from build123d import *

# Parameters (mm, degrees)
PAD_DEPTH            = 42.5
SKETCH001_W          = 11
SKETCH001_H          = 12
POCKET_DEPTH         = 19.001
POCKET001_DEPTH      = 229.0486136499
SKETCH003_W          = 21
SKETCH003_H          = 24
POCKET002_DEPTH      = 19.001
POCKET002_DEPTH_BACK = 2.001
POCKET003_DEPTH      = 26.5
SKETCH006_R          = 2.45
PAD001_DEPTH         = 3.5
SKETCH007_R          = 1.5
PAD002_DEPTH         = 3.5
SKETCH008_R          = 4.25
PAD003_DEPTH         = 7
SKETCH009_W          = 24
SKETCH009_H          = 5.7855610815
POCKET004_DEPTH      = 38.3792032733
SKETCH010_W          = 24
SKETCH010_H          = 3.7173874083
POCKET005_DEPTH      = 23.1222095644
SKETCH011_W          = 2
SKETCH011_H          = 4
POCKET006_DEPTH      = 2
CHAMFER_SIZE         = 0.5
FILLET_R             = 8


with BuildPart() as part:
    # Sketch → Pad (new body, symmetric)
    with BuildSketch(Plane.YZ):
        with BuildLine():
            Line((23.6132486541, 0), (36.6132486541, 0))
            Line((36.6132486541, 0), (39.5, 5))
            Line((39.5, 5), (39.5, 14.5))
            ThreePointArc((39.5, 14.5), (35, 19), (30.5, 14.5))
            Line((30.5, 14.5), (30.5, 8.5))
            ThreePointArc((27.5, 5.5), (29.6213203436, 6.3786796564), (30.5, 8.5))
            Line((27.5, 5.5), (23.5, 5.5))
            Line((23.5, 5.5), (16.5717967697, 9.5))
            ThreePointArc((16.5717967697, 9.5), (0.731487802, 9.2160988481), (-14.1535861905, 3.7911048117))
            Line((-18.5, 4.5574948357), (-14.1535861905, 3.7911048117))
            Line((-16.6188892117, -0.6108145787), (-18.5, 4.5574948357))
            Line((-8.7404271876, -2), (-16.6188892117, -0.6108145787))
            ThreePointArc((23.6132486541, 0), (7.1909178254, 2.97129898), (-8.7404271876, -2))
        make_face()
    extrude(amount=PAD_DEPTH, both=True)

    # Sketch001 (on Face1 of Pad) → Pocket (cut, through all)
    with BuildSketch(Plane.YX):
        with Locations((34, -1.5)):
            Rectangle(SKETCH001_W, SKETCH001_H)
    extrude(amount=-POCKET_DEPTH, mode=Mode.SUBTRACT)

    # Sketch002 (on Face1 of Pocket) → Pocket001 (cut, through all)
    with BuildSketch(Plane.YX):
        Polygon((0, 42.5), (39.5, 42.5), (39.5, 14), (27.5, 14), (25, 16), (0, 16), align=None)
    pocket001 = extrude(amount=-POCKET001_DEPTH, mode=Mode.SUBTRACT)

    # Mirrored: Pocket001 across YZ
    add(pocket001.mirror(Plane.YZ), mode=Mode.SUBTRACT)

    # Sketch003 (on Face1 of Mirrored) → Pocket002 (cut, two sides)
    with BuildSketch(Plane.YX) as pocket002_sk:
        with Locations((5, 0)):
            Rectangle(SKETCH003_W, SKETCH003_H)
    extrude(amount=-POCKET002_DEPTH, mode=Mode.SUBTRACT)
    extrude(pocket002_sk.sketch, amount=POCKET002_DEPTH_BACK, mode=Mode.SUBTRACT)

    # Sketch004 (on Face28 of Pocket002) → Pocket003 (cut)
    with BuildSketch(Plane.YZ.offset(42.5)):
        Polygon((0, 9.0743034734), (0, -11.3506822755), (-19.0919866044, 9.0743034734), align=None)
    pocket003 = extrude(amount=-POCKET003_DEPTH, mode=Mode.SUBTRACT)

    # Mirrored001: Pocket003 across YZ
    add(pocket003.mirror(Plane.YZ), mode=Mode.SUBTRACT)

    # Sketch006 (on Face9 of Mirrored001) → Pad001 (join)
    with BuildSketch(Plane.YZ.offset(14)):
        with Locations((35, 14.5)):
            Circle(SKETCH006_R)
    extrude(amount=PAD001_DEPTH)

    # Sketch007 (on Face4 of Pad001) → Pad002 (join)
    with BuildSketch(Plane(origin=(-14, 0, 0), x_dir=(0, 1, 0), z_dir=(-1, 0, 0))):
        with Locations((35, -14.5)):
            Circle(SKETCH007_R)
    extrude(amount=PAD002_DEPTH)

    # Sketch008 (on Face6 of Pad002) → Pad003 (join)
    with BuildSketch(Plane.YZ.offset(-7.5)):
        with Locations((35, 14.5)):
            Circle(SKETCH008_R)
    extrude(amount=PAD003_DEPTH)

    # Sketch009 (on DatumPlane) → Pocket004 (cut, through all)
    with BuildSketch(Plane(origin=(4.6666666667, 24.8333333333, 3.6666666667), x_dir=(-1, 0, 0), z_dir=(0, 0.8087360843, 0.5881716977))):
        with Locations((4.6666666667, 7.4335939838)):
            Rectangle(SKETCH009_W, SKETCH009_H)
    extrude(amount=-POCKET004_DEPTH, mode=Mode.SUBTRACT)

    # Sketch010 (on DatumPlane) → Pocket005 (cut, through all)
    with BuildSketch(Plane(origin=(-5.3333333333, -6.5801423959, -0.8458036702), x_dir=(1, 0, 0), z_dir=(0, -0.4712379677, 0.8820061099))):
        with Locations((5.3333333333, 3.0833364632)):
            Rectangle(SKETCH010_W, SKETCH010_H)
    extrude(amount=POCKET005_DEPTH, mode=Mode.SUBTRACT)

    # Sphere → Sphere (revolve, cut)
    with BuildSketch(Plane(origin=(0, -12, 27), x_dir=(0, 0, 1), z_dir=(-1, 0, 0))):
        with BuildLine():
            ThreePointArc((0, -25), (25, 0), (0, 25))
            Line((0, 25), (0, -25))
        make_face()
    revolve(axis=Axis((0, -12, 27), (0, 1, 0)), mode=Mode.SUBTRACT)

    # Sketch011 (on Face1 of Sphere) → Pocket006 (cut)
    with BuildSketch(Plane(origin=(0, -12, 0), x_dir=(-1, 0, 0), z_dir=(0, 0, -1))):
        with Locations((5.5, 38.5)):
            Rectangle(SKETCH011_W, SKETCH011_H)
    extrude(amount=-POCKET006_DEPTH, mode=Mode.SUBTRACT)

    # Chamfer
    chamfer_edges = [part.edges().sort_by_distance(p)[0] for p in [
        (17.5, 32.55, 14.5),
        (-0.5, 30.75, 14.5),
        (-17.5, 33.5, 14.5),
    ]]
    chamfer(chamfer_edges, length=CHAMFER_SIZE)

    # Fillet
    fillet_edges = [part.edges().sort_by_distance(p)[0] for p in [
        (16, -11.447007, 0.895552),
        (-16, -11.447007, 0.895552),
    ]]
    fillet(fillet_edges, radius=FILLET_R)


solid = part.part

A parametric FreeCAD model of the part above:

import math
import FreeCAD as App
import Part
import Sketcher

V = App.Vector
Q = App.Units.Quantity


def edges_at(feature, points):
    """Names of the edges that pass closest to the given points."""
    edges = feature.Shape.Edges
    near = lambda p: min(range(len(edges)), key=lambda i: edges[i].distToShape(Part.Vertex(*p))[0])
    return sorted({f"Edge{near(p) + 1}" for p in points})


def add_polygon(sketch, points):
    """Adds a closed chain of lines whose ends are joined by coincident constraints."""
    first, n = sketch.GeometryCount, len(points)
    for a, b in zip(points, points[1:] + points[:1]):
        sketch.addGeometry(Part.LineSegment(App.Vector(*a, 0), App.Vector(*b, 0)), False)
    for i in range(n):
        sketch.addConstraint(Sketcher.Constraint("Coincident", first + i, 2, first + (i + 1) % n, 1))

doc = App.newDocument("Part")
body = doc.addObject("PartDesign::Body", "Body")

# Sketch on YZ plane
sketch1 = body.newObject("Sketcher::SketchObject", "Sketch")
sketch1.AttachmentSupport = (doc.getObject("YZ_Plane"), [""])
sketch1.MapMode = "FlatFace"
sketch1.addGeometry([
    Part.LineSegment(V(23.6, 0, 0), V(36.6, 0, 0)),  # 0
    Part.LineSegment(V(36.6, 0, 0), V(39.5, 5, 0)),  # 1
    Part.LineSegment(V(39.5, 5, 0), V(39.5, 14.5, 0)),  # 2
    Part.ArcOfCircle(Part.Circle(V(35, 14.5, 0), V(0, 0, 1), 4.5), math.radians(0), math.radians(180)),  # 3
    Part.LineSegment(V(30.5, 14.5, 0), V(30.5, 8.5, 0)),  # 4
    Part.ArcOfCircle(Part.Circle(V(27.5, 8.5, 0), V(0, 0, 1), 3), math.radians(-90), math.radians(0)),  # 5
    Part.LineSegment(V(27.5, 5.5, 0), V(23.5, 5.5, 0)),  # 6
    Part.LineSegment(V(23.5, 5.5, 0), V(16.6, 9.5, 0)),  # 7
    Part.ArcOfCircle(Part.Circle(V(9.5, -38, 0), V(0, 0, 1), 48), math.radians(82), math.radians(120)),  # 8
    Part.LineSegment(V(-14.2, 3.8, 0), V(-18.5, 4.6, 0)),  # 9
    Part.LineSegment(V(-18.5, 4.6, 0), V(-16.6, -0.6, 0)),  # 10
    Part.LineSegment(V(-16.6, -0.6, 0), V(-8.7, -2, 0)),  # 11
    Part.ArcOfCircle(Part.Circle(V(9.4, -32, 0), V(0, 0, 1), 35), math.radians(66), math.radians(121)),  # 12
], False)
sketch1.addConstraint([
    Sketcher.Constraint("Coincident", 0, 2, 1, 1),
    Sketcher.Constraint("Coincident", 1, 2, 2, 1),
    Sketcher.Constraint("Tangent", 2, 2, 3, 1),
    Sketcher.Constraint("Tangent", 3, 2, 4, 1),
    Sketcher.Constraint("Tangent", 4, 2, 5, 2),
    Sketcher.Constraint("Tangent", 5, 1, 6, 1),
    Sketcher.Constraint("Coincident", 6, 2, 7, 1),
    Sketcher.Constraint("Coincident", 7, 2, 8, 1),
    Sketcher.Constraint("Coincident", 8, 2, 9, 1),
    Sketcher.Constraint("Coincident", 9, 2, 10, 1),
    Sketcher.Constraint("Coincident", 10, 2, 11, 1),
    Sketcher.Constraint("Coincident", 11, 2, 12, 2),
    Sketcher.Constraint("Coincident", 12, 1, 0, 1),
    Sketcher.Constraint("Horizontal", 0),
    Sketcher.Constraint("Vertical", 2),
    Sketcher.Constraint("Vertical", 4),
    Sketcher.Constraint("Horizontal", 6),
    Sketcher.Constraint("PointOnObject", 0, 2, -1),
    Sketcher.Constraint("Perpendicular", 1, 7),
    Sketcher.Constraint("Parallel", 9, 11),
    Sketcher.Constraint("Equal", 7, 11),
    Sketcher.Constraint("Radius", 5, Q("3 mm")),
    Sketcher.Constraint("Radius", 8, Q("48 mm")),
    Sketcher.Constraint("Radius", 12, Q("35 mm")),
    Sketcher.Constraint("Radius", 3, Q("4.5 mm")),
    Sketcher.Constraint("DistanceX", 0, 1, 0, 2, Q("13 mm")),
    Sketcher.Constraint("DistanceX", 6, 2, 6, 1, Q("4 mm")),
    Sketcher.Constraint("DistanceY", 4, 2, 4, 1, Q("6 mm")),
    Sketcher.Constraint("Angle", 1, Q("60 deg")),
    Sketcher.Constraint("Angle", 9, Q("170 deg")),
    Sketcher.Constraint("Angle", 10, Q("-70 deg")),
    Sketcher.Constraint("Distance", 7, Q("8 mm")),
    Sketcher.Constraint("DistanceY", 2, 1, 2, 2, Q("9.5 mm")),
    Sketcher.Constraint("DistanceX", -1, 1, 3, 3, Q("35 mm")),
    Sketcher.Constraint("DistanceY", -1, 1, 1, 2, Q("5 mm")),
    Sketcher.Constraint("DistanceY", 11, 2, -1, 1, Q("2 mm")),
    Sketcher.Constraint("DistanceX", 8, 3, 5, 3, Q("18 mm")),
    Sketcher.Constraint("DistanceX", 9, 2, 6, 2, Q("42 mm")),
    Sketcher.Constraint("Distance", 10, Q("5.5 mm")),
])
pad1 = body.newObject("PartDesign::Pad", "Pad")
pad1.Profile = sketch1
pad1.Length = 85
pad1.Midplane = True

# Sketch on XY plane
sketch2 = body.newObject("Sketcher::SketchObject", "Sketch001")
sketch2.AttachmentSupport = (doc.getObject("XY_Plane"), [""])
sketch2.MapMode = "FlatFace"
add_polygon(sketch2, [(4, 28), (-8, 28), (-8, 40), (4, 40)])  # lines 0-3
sketch2.addConstraint([
    Sketcher.Constraint("Horizontal", 0),
    Sketcher.Constraint("Vertical", 1),
    Sketcher.Constraint("Horizontal", 2),
    Sketcher.Constraint("Vertical", 3),
    Sketcher.Constraint("DistanceX", 0, 2, 0, 1, Q("12 mm")),
    Sketcher.Constraint("DistanceY", 1, 1, 1, 2, Q("11 mm")),
    Sketcher.Constraint("DistanceX", 0, 2, -1, 1, Q("7.5 mm")),
    Sketcher.Constraint("DistanceY", -1, 1, 0, 2, Q("28.5 mm")),
])
pocket1 = body.newObject("PartDesign::Pocket", "Pocket")
pocket1.Profile = sketch2
pocket1.Type = "ThroughAll"
pocket1.Reversed = True

# Sketch on XY plane
sketch3 = body.newObject("Sketcher::SketchObject", "Sketch002")
sketch3.AttachmentSupport = (doc.getObject("XY_Plane"), [""])
sketch3.MapMode = "FlatFace"
add_polygon(sketch3, [(42.5, 39.5), (42.5, 0), (16, 0), (16, 25), (14, 27.5), (14, 39.5)])  # lines 0-5
sketch3.addConstraint([
    Sketcher.Constraint("Vertical", 0),
    Sketcher.Constraint("Horizontal", 1),
    Sketcher.Constraint("Vertical", 2),
    Sketcher.Constraint("Vertical", 4),
    Sketcher.Constraint("Horizontal", 5),
    Sketcher.Constraint("PointOnObject", 0, 2, -1),
    Sketcher.Constraint("DistanceY", 2, 1, 2, 2, Q("25 mm")),
    Sketcher.Constraint("DistanceY", 4, 1, 4, 2, Q("12 mm")),
    Sketcher.Constraint("DistanceX", 1, 2, 1, 1, Q("26.5 mm")),
    Sketcher.Constraint("DistanceX", 5, 1, 5, 2, Q("28.5 mm")),
    Sketcher.Constraint("DistanceY", 0, 2, 0, 1, Q("39.5 mm")),
    Sketcher.Constraint("DistanceX", -1, 1, 1, 2, Q("16 mm")),
])
pocket2 = body.newObject("PartDesign::Pocket", "Pocket001")
pocket2.Profile = sketch3
pocket2.Type = "ThroughAll"
pocket2.Reversed = True
doc.recompute()

mirrored = body.newObject("PartDesign::Mirrored", "Mirrored")
mirrored.Originals = [pocket2]
mirrored.MirrorPlane = (doc.getObject("YZ_Plane"), [""])
body.Tip = mirrored

# Sketch on XY plane
sketch4 = body.newObject("Sketcher::SketchObject", "Sketch003")
sketch4.AttachmentSupport = (doc.getObject("XY_Plane"), [""])
sketch4.MapMode = "FlatFace"
add_polygon(sketch4, [(12, -6), (-12, -6), (-12, 16), (12, 16)])  # lines 0-3
sketch4.addConstraint([
    Sketcher.Constraint("Horizontal", 0),
    Sketcher.Constraint("Vertical", 1),
    Sketcher.Constraint("Horizontal", 2),
    Sketcher.Constraint("Vertical", 3),
    Sketcher.Constraint("DistanceX", 0, 2, 0, 1, Q("24 mm")),
    Sketcher.Constraint("DistanceY", 1, 1, 1, 2, Q("21 mm")),
    Sketcher.Constraint("DistanceX", 0, 2, -1, 1, Q("12 mm")),
    Sketcher.Constraint("DistanceY", 0, 2, -1, 1, Q("5.5 mm")),
])
pocket3 = body.newObject("PartDesign::Pocket", "Pocket002")
pocket3.Profile = sketch4
pocket3.Type = "ThroughAll"
pocket3.Midplane = True

# Sketch on YZ plane
sketch5 = body.newObject("Sketcher::SketchObject", "Sketch004")
sketch5.AttachmentSupport = (doc.getObject("YZ_Plane"), [""])
sketch5.MapMode = "FlatFace"
sketch5.AttachmentOffset = App.Placement(V(0, 0, 42.5), App.Rotation())
add_polygon(sketch5, [(0, -11), (0, 9), (-19, 9)])  # lines 0-2
sketch5.addConstraint([
    Sketcher.Constraint("Vertical", 0),
    Sketcher.Constraint("Horizontal", 1),
    Sketcher.Constraint("PointOnObject", 0, 2, -2),
    Sketcher.Constraint("DistanceX", 1, 2, 1, 1, Q("19.091987 mm")),
    Sketcher.Constraint("DistanceY", 0, 1, 0, 2, Q("20.424986 mm")),
    Sketcher.Constraint("DistanceY", -1, 1, 0, 2, Q("9.074303 mm")),
])
pocket4 = body.newObject("PartDesign::Pocket", "Pocket003")
pocket4.Profile = sketch5
pocket4.Length = 26.5
doc.recompute()

mirrored2 = body.newObject("PartDesign::Mirrored", "Mirrored001")
mirrored2.Originals = [pocket4]
mirrored2.MirrorPlane = (doc.getObject("YZ_Plane"), [""])
body.Tip = mirrored2

# Sketch on YZ plane
sketch6 = body.newObject("Sketcher::SketchObject", "Sketch005")
sketch6.AttachmentSupport = (doc.getObject("YZ_Plane"), [""])
sketch6.MapMode = "FlatFace"
sketch6.AttachmentOffset = App.Placement(V(0, 0, 14), App.Rotation())
sketch6.addGeometry(Part.Circle(V(35, 14.5, 0), V(0, 0, 1), 2.5), False)
sketch6.addConstraint([
    Sketcher.Constraint("Diameter", 0, Q("4.9 mm")),
    Sketcher.Constraint("DistanceX", -1, 1, 0, 3, Q("35 mm")),
    Sketcher.Constraint("DistanceY", -1, 1, 0, 3, Q("14.5 mm")),
])
pad2 = body.newObject("PartDesign::Pad", "Pad001")
pad2.Profile = sketch6
pad2.Length = 3.5

# Sketch on YZ plane
sketch7 = body.newObject("Sketcher::SketchObject", "Sketch006")
sketch7.AttachmentSupport = (doc.getObject("YZ_Plane"), [""])
sketch7.MapMode = "FlatFace"
sketch7.AttachmentOffset = App.Placement(V(0, 0, -14), App.Rotation())
sketch7.addGeometry(Part.Circle(V(35, 14.5, 0), V(0, 0, 1), 1.5), False)
sketch7.addConstraint([
    Sketcher.Constraint("Diameter", 0, Q("3 mm")),
    Sketcher.Constraint("DistanceX", -1, 1, 0, 3, Q("35 mm")),
    Sketcher.Constraint("DistanceY", -1, 1, 0, 3, Q("14.5 mm")),
])
pad3 = body.newObject("PartDesign::Pad", "Pad002")
pad3.Profile = sketch7
pad3.Length = 3.5
pad3.Reversed = True

# Sketch on YZ plane
sketch8 = body.newObject("Sketcher::SketchObject", "Sketch007")
sketch8.AttachmentSupport = (doc.getObject("YZ_Plane"), [""])
sketch8.MapMode = "FlatFace"
sketch8.AttachmentOffset = App.Placement(V(0, 0, -7.5), App.Rotation())
sketch8.addGeometry(Part.Circle(V(35, 14.5, 0), V(0, 0, 1), 4.2), False)
sketch8.addConstraint([
    Sketcher.Constraint("Diameter", 0, Q("8.5 mm")),
    Sketcher.Constraint("DistanceX", -1, 1, 0, 3, Q("35 mm")),
    Sketcher.Constraint("DistanceY", -1, 1, 0, 3, Q("14.5 mm")),
])
pad4 = body.newObject("PartDesign::Pad", "Pad003")
pad4.Profile = sketch8
pad4.Length = 7

# Sketch on an angled plane
sketch9 = body.newObject("Sketcher::SketchObject", "Sketch008")
sketch9.Placement = App.Placement(V(4.666667, 24.833333, 3.666667), App.Rotation(V(-1, 0, 0), V(0, -0.588171698, 0.808736084), V(0, 0.808736084, 0.588171698), "ZXY"))
add_polygon(sketch9, [(-7, 10), (-7, 5), (17, 5), (17, 10)])  # lines 0-3
sketch9.addConstraint([
    Sketcher.Constraint("Vertical", 0),
    Sketcher.Constraint("Horizontal", 1),
    Sketcher.Constraint("Vertical", 2),
    Sketcher.Constraint("Horizontal", 3),
    Sketcher.Constraint("DistanceX", 1, 1, 1, 2, Q("24 mm")),
    Sketcher.Constraint("DistanceY", 0, 2, 0, 1, Q("5.785561 mm")),
    Sketcher.Constraint("DistanceX", 0, 2, -1, 1, Q("7.333333 mm")),
    Sketcher.Constraint("DistanceY", -1, 1, 0, 2, Q("4.540813 mm")),
])
pocket5 = body.newObject("PartDesign::Pocket", "Pocket004")
pocket5.Profile = sketch9
pocket5.Type = "ThroughAll"

# Sketch on an angled plane
sketch10 = body.newObject("Sketcher::SketchObject", "Sketch009")
sketch10.Placement = App.Placement(V(-5.333333, -6.580142, -0.845804), App.Rotation(V(1, 0, 0), V(0, 0.88200611, 0.471237968), V(0, -0.471237968, 0.88200611), "ZXY"))
add_polygon(sketch10, [(-6.7, 4.9), (-6.7, 1.2), (17.3, 1.2), (17.3, 4.9)])  # lines 0-3
sketch10.addConstraint([
    Sketcher.Constraint("Vertical", 0),
    Sketcher.Constraint("Horizontal", 1),
    Sketcher.Constraint("Vertical", 2),
    Sketcher.Constraint("Horizontal", 3),
    Sketcher.Constraint("DistanceX", 1, 1, 1, 2, Q("24 mm")),
    Sketcher.Constraint("DistanceY", 0, 2, 0, 1, Q("3.717387 mm")),
    Sketcher.Constraint("DistanceY", -1, 1, 2, 2, Q("4.94203 mm")),
    Sketcher.Constraint("DistanceX", 0, 2, -1, 1, Q("6.666667 mm")),
])
pocket6 = body.newObject("PartDesign::Pocket", "Pocket005")
pocket6.Profile = sketch10
pocket6.Type = "ThroughAll"
pocket6.Reversed = True

# Sketch on YZ plane
sketch11 = body.newObject("Sketcher::SketchObject", "Sketch010")
sketch11.AttachmentSupport = (doc.getObject("YZ_Plane"), [""])
sketch11.MapMode = "FlatFace"
sketch11.addGeometry([
    Part.ArcOfCircle(Part.Circle(V(-12, 27, 0), V(0, 0, 1), 25), math.radians(0), math.radians(180)),
    Part.LineSegment(V(13, 27, 0), V(-37, 27, 0)),
], False)
sketch11.addGeometry(Part.LineSegment(V(-37, 27, 0), V(13, 27, 0)), True)  # axis
sketch11.addConstraint([
    Sketcher.Constraint("Coincident", 0, 1, 1, 1),
    Sketcher.Constraint("Coincident", 1, 2, 0, 2),
    Sketcher.Constraint("Horizontal", 1),
    Sketcher.Constraint("Horizontal", 2),
    Sketcher.Constraint("Coincident", 2, 1, 1, 2),
    Sketcher.Constraint("Equal", 1, 2),
    Sketcher.Constraint("Radius", 0, Q("25 mm")),
    Sketcher.Constraint("DistanceX", 0, 3, -1, 1, Q("12 mm")),
    Sketcher.Constraint("DistanceY", -1, 1, 0, 3, Q("27 mm")),
    Sketcher.Constraint("DistanceY", -1, 1, 0, 1, Q("27 mm")),
])
groove = body.newObject("PartDesign::Groove", "Groove")
groove.Profile = sketch11
groove.ReferenceAxis = (sketch11, ["Axis0"])
groove.Angle = 360

# Sketch on XY plane
sketch12 = body.newObject("Sketcher::SketchObject", "Sketch011")
sketch12.AttachmentSupport = (doc.getObject("XY_Plane"), [""])
sketch12.MapMode = "FlatFace"
add_polygon(sketch12, [(-4.5, 28.5), (-4.5, 24.5), (-6.5, 24.5), (-6.5, 28.5)])  # lines 0-3
sketch12.addConstraint([
    Sketcher.Constraint("Vertical", 0),
    Sketcher.Constraint("Horizontal", 1),
    Sketcher.Constraint("Vertical", 2),
    Sketcher.Constraint("Horizontal", 3),
    Sketcher.Constraint("DistanceX", 1, 2, 1, 1, Q("2 mm")),
    Sketcher.Constraint("DistanceY", 0, 2, 0, 1, Q("4 mm")),
    Sketcher.Constraint("DistanceX", 0, 2, -1, 1, Q("4.5 mm")),
    Sketcher.Constraint("DistanceY", -1, 1, 0, 2, Q("24.5 mm")),
])
pocket7 = body.newObject("PartDesign::Pocket", "Pocket006")
pocket7.Profile = sketch12
pocket7.Length = 2
pocket7.Reversed = True
doc.recompute()

chamfer = body.newObject("PartDesign::Chamfer", "Chamfer")
chamfer.Base = (pocket7, edges_at(pocket7, [(17.5, 32.55, 14.5), (-0.5, 30.75, 14.5), (-17.5, 33.5, 14.5)]))
chamfer.Size = 0.5
doc.recompute()

fillet = body.newObject("PartDesign::Fillet", "Fillet")
fillet.Base = (chamfer, edges_at(chamfer, [(16, -11.447, 0.896), (-16, -11.447, 0.896)]))
fillet.Radius = 8

doc.recompute()
